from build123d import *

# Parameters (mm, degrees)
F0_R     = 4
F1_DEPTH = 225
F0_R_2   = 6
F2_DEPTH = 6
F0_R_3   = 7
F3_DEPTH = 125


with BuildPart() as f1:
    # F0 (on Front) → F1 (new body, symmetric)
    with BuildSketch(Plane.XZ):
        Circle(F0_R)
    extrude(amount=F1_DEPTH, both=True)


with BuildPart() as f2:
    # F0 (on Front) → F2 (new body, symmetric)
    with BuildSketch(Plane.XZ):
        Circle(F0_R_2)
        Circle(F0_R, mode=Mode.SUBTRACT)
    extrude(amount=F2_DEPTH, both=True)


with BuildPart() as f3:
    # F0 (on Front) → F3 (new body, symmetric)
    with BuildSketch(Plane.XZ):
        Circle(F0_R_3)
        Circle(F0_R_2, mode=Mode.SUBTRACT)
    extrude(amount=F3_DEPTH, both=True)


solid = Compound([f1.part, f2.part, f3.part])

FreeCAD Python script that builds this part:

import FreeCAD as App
import Part
import Sketcher

doc = App.newDocument("Part")
body = doc.addObject("PartDesign::Body", "Body")

sketch1 = body.newObject("Sketcher::SketchObject", "Sketch")
sketch1.AttachmentSupport = (doc.getObject("XZ_Plane"), [""])
sketch1.MapMode = "FlatFace"
sketch1.addGeometry(Part.Circle(App.Vector(0, 0, 0), App.Vector(0, 0, 1), 4), False)
sketch1.addConstraint([
    Sketcher.Constraint("Coincident", 0, 3, -1, 1),
    Sketcher.Constraint("Diameter", 0, 8.0),
])
pad1 = body.newObject("PartDesign::Pad", "Pad")
pad1.Profile = sketch1
pad1.Length = 450
pad1.Midplane = True
body2 = doc.addObject("PartDesign::Body", "Body001")

sketch2 = body2.newObject("Sketcher::SketchObject", "Sketch001")
sketch2.AttachmentSupport = (doc.getObject("XZ_Plane001"), [""])
sketch2.MapMode = "FlatFace"
sketch2.addGeometry([
    Part.Circle(App.Vector(0, 0, 0), App.Vector(0, 0, 1), 6),
    Part.Circle(App.Vector(0, 0, 0), App.Vector(0, 0, 1), 4),
], False)
sketch2.addConstraint([
    Sketcher.Constraint("Coincident", 0, 3, -1, 1),
    Sketcher.Constraint("Coincident", 1, 3, -1, 1),
    Sketcher.Constraint("Diameter", 0, 12.0),
    Sketcher.Constraint("Diameter", 1, 8.0),
])
pad2 = body2.newObject("PartDesign::Pad", "Pad001")
pad2.Profile = sketch2
pad2.Length = 12
pad2.Midplane = True
body3 = doc.addObject("PartDesign::Body", "Body002")

sketch3 = body3.newObject("Sketcher::SketchObject", "Sketch002")
sketch3.AttachmentSupport = (doc.getObject("XZ_Plane002"), [""])
sketch3.MapMode = "FlatFace"
sketch3.addGeometry([
    Part.Circle(App.Vector(0, 0, 0), App.Vector(0, 0, 1), 7),
    Part.Circle(App.Vector(0, 0, 0), App.Vector(0, 0, 1), 6),
], False)
sketch3.addConstraint([
    Sketcher.Constraint("Coincident", 0, 3, -1, 1),
    Sketcher.Constraint("Coincident", 1, 3, -1, 1),
    Sketcher.Constraint("Diameter", 0, 14.0),
    Sketcher.Constraint("Diameter", 1, 12.0),
])
pad3 = body3.newObject("PartDesign::Pad", "Pad002")
pad3.Profile = sketch3
pad3.Length = 250
pad3.Midplane = True

doc.recompute()
